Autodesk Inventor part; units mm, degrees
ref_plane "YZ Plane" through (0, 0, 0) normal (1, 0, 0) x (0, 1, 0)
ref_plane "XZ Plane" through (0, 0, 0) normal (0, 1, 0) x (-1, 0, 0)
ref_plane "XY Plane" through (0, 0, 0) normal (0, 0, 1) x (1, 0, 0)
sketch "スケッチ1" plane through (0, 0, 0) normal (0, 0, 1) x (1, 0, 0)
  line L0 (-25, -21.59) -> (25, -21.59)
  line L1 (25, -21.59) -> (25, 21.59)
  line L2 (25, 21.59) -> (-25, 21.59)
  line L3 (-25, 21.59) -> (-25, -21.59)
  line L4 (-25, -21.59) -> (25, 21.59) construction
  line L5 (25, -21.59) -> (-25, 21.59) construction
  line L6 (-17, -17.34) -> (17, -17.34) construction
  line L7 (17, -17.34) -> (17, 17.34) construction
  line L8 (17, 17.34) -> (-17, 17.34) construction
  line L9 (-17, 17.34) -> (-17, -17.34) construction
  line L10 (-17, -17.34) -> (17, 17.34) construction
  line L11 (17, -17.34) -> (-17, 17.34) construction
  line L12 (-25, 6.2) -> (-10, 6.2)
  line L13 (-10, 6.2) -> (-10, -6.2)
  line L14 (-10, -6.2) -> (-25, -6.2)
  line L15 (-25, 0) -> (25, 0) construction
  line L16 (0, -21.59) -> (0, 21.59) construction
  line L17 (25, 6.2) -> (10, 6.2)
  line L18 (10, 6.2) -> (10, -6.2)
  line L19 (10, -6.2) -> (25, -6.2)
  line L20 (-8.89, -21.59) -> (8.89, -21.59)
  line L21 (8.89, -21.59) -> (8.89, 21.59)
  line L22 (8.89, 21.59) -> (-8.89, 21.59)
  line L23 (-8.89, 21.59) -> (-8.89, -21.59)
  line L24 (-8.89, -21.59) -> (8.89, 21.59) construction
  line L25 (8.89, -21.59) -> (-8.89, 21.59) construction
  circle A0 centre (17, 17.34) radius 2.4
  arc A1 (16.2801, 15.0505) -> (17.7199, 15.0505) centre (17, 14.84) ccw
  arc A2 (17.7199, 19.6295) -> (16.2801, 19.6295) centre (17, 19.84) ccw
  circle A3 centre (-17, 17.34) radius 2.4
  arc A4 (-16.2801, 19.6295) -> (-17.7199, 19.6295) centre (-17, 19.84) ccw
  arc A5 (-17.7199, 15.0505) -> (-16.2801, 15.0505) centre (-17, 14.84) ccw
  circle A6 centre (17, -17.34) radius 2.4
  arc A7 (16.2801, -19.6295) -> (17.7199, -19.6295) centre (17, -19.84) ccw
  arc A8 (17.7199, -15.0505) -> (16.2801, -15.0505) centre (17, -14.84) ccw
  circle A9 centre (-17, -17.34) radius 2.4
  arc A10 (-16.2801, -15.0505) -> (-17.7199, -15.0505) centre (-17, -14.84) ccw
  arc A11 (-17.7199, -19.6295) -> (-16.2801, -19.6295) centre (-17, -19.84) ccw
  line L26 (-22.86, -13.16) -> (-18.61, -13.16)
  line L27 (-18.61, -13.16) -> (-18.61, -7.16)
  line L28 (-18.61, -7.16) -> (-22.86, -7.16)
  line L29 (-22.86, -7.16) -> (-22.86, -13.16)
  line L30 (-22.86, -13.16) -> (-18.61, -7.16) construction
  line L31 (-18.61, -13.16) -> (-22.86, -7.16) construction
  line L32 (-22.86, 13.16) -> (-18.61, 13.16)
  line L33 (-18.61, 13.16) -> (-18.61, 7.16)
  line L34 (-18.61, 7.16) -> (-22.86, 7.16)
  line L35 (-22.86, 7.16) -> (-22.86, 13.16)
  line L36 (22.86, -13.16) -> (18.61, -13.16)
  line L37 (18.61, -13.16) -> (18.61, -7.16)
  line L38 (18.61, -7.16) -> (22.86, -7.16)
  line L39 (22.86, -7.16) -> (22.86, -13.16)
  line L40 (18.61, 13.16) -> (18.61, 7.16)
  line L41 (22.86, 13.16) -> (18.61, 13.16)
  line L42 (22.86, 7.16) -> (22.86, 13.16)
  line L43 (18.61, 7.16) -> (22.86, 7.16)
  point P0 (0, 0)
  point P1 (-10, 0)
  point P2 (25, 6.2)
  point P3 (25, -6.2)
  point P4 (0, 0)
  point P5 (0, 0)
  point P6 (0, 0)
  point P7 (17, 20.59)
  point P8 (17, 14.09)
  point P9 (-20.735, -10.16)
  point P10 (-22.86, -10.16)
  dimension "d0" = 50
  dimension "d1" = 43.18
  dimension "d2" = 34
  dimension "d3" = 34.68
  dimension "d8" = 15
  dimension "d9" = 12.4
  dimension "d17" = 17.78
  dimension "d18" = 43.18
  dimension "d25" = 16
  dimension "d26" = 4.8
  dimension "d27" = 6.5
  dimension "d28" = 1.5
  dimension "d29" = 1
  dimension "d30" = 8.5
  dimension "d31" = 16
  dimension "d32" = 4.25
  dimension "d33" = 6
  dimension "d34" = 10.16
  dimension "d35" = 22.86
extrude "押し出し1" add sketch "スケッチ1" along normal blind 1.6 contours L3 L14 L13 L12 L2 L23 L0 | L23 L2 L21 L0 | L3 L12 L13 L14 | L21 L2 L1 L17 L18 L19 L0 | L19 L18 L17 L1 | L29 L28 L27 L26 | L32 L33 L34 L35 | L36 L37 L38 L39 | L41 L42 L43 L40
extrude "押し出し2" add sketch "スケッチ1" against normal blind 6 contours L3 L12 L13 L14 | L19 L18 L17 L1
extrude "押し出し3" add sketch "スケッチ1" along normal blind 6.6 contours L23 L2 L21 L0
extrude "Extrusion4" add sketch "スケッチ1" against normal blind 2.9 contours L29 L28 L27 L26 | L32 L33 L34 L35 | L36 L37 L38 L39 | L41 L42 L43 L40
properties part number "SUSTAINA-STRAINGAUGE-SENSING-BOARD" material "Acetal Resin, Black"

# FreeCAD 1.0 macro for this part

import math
import FreeCAD as App
import Part
import Sketcher

doc = App.newDocument("Part")
body = doc.addObject("PartDesign::Body", "Body")

# Sketch on XY plane
sketch1 = doc.addObject("Sketcher::SketchObject", "Sketch")
body.addObject(sketch1)
sketch1.AttachmentSupport = (doc.XY_Plane, [""])
sketch1.MapMode = "FlatFace"
sketch1.addGeometry([
    Part.LineSegment(App.Vector(-25, -21.59, 0), App.Vector(25, -21.59, 0)),  # 0
    Part.LineSegment(App.Vector(25, -21.59, 0), App.Vector(25, 21.59, 0)),  # 1
    Part.LineSegment(App.Vector(25, 21.59, 0), App.Vector(-25, 21.59, 0)),  # 2
    Part.LineSegment(App.Vector(-25, 21.59, 0), App.Vector(-25, -21.59, 0)),  # 3
    Part.ArcOfCircle(Part.Circle(App.Vector(-17, -17.34, 0), App.Vector(0, 0, 1), 2.4), math.radians(-72.545003), math.radians(72.545003)),  # 4
    Part.ArcOfCircle(Part.Circle(App.Vector(-17, -19.84, 0), App.Vector(0, 0, 1), 0.750044), math.radians(163.700989), math.radians(376.299011)),  # 5
    Part.ArcOfCircle(Part.Circle(App.Vector(-17, -17.34, 0), App.Vector(0, 0, 1), 2.4), math.radians(107.454997), math.radians(252.545003)),  # 6
    Part.ArcOfCircle(Part.Circle(App.Vector(-17, -14.84, 0), App.Vector(0, 0, 1), 0.750044), math.radians(-16.299011), math.radians(196.299011)),  # 7
    Part.ArcOfCircle(Part.Circle(App.Vector(-17, 17.34, 0), App.Vector(0, 0, 1), 2.4), math.radians(-72.545003), math.radians(72.545003)),  # 8
    Part.ArcOfCircle(Part.Circle(App.Vector(-17, 14.84, 0), App.Vector(0, 0, 1), 0.750044), math.radians(163.700989), math.radians(376.299011)),  # 9
    Part.ArcOfCircle(Part.Circle(App.Vector(-17, 17.34, 0), App.Vector(0, 0, 1), 2.4), math.radians(107.454997), math.radians(252.545003)),  # 10
    Part.ArcOfCircle(Part.Circle(App.Vector(-17, 19.84, 0), App.Vector(0, 0, 1), 0.750044), math.radians(-16.299011), math.radians(196.299011)),  # 11
    Part.ArcOfCircle(Part.Circle(App.Vector(17, 14.84, 0), App.Vector(0, 0, 1), 0.750044), math.radians(163.700989), math.radians(376.299011)),  # 12
    Part.ArcOfCircle(Part.Circle(App.Vector(17, 17.34, 0), App.Vector(0, 0, 1), 2.4), math.radians(107.454997), math.radians(252.545003)),  # 13
    Part.ArcOfCircle(Part.Circle(App.Vector(17, 19.84, 0), App.Vector(0, 0, 1), 0.750044), math.radians(-16.299011), math.radians(196.299011)),  # 14
    Part.ArcOfCircle(Part.Circle(App.Vector(17, 17.34, 0), App.Vector(0, 0, 1), 2.4), math.radians(-72.545003), math.radians(72.545003)),  # 15
    Part.ArcOfCircle(Part.Circle(App.Vector(17, -17.34, 0), App.Vector(0, 0, 1), 2.4), math.radians(-72.545003), math.radians(72.545003)),  # 16
    Part.ArcOfCircle(Part.Circle(App.Vector(17, -19.84, 0), App.Vector(0, 0, 1), 0.750044), math.radians(163.700989), math.radians(376.299011)),  # 17
    Part.ArcOfCircle(Part.Circle(App.Vector(17, -17.34, 0), App.Vector(0, 0, 1), 2.4), math.radians(107.454997), math.radians(252.545003)),  # 18
    Part.ArcOfCircle(Part.Circle(App.Vector(17, -14.84, 0), App.Vector(0, 0, 1), 0.750044), math.radians(-16.299011), math.radians(196.299011)),  # 19
], False)
sketch1.addConstraint([
    Sketcher.Constraint("Coincident", 0, 2, 1, 1),
    Sketcher.Constraint("Coincident", 1, 2, 2, 1),
    Sketcher.Constraint("Coincident", 2, 2, 3, 1),
    Sketcher.Constraint("Coincident", 3, 2, 0, 1),
    Sketcher.Constraint("Coincident", 4, 1, 5, 2),
    Sketcher.Constraint("Coincident", 5, 1, 6, 2),
    Sketcher.Constraint("Coincident", 6, 1, 7, 2),
    Sketcher.Constraint("Coincident", 7, 1, 4, 2),
    Sketcher.Constraint("Coincident", 8, 1, 9, 2),
    Sketcher.Constraint("Coincident", 9, 1, 10, 2),
    Sketcher.Constraint("Coincident", 10, 1, 11, 2),
    Sketcher.Constraint("Coincident", 11, 1, 8, 2),
    Sketcher.Constraint("Coincident", 12, 1, 13, 2),
    Sketcher.Constraint("Coincident", 13, 1, 14, 2),
    Sketcher.Constraint("Coincident", 14, 1, 15, 2),
    Sketcher.Constraint("Coincident", 15, 1, 12, 2),
    Sketcher.Constraint("Coincident", 16, 1, 17, 2),
    Sketcher.Constraint("Coincident", 17, 1, 18, 2),
    Sketcher.Constraint("Coincident", 18, 1, 19, 2),
    Sketcher.Constraint("Coincident", 19, 1, 16, 2),
    Sketcher.Constraint("Horizontal", 0),
    Sketcher.Constraint("Vertical", 1),
    Sketcher.Constraint("Horizontal", 2),
    Sketcher.Constraint("Vertical", 3),
    Sketcher.Constraint("Coincident", 6, 3, 4, 3),
    Sketcher.Constraint("Coincident", 10, 3, 8, 3),
    Sketcher.Constraint("Coincident", 15, 3, 13, 3),
    Sketcher.Constraint("Coincident", 18, 3, 16, 3),
    Sketcher.Constraint("Equal", 4, 6),
    Sketcher.Constraint("Equal", 5, 7),
    Sketcher.Constraint("Equal", 6, 8),
    Sketcher.Constraint("Equal", 7, 9),
    Sketcher.Constraint("Equal", 8, 10),
    Sketcher.Constraint("Equal", 9, 11),
    Sketcher.Constraint("Equal", 11, 12),
    Sketcher.Constraint("Equal", 10, 13),
    Sketcher.Constraint("Equal", 12, 14),
    Sketcher.Constraint("Equal", 13, 15),
    Sketcher.Constraint("Equal", 15, 16),
    Sketcher.Constraint("Equal", 14, 17),
    Sketcher.Constraint("Equal", 16, 18),
    Sketcher.Constraint("Equal", 17, 19),
    Sketcher.Constraint("Symmetric", 7, 3, 12, 3, -1, 1),
    Sketcher.Constraint("Symmetric", 4, 3, 13, 3, -1, 1),
    Sketcher.Constraint("Symmetric", 5, 3, 14, 3, -1, 1),
    Sketcher.Constraint("Symmetric", 8, 3, 16, 3, -1, 1),
    Sketcher.Constraint("Symmetric", 11, 3, 17, 3, -1, 1),
    Sketcher.Constraint("Symmetric", 9, 3, 19, 3, -1, 1),
    Sketcher.Constraint("Symmetric", 0, 2, 2, 2, -1, 1),
    Sketcher.Constraint("Symmetric", 9, 3, 12, 3, -2),
    Sketcher.Constraint("Symmetric", 8, 3, 13, 3, -2),
    Sketcher.Constraint("Symmetric", 11, 3, 14, 3, -2),
    Sketcher.Constraint("Horizontal", 4, 1, 5, 1),
    Sketcher.Constraint("Horizontal", 6, 1, 7, 1),
    Sketcher.Constraint("Vertical", 5, 1, 6, 1),
    Sketcher.Constraint("Radius", 4, 2.4),
    Sketcher.Constraint("DistanceX", 0, 1, 0, 2, 50.0),
    Sketcher.Constraint("Radius", 5, 0.75),
    Sketcher.Constraint("DistanceX", 9, 3, 12, 3, 34.0),
    Sketcher.Constraint("DistanceY", 1, 1, 1, 2, 43.18),
    Sketcher.Constraint("DistanceY", 4, 3, 8, 3, 34.68),
    Sketcher.Constraint("DistanceY", 5, 3, 7, 3, 5.0),
])
pad1 = doc.addObject("PartDesign::Pad", "Pad")
body.addObject(pad1)
pad1.Profile = sketch1
pad1.Length = 1.6

# Sketch on XY plane
sketch2 = doc.addObject("Sketcher::SketchObject", "Sketch001")
body.addObject(sketch2)
sketch2.AttachmentSupport = (doc.XY_Plane, [""])
sketch2.MapMode = "FlatFace"
sketch2.addGeometry([
    Part.LineSegment(App.Vector(-25, 6.2, 0), App.Vector(-25, -6.2, 0)),  # 0
    Part.LineSegment(App.Vector(-25, -6.2, 0), App.Vector(-10, -6.2, 0)),  # 1
    Part.LineSegment(App.Vector(-10, -6.2, 0), App.Vector(-10, 6.2, 0)),  # 2
    Part.LineSegment(App.Vector(-10, 6.2, 0), App.Vector(-25, 6.2, 0)),  # 3
    Part.LineSegment(App.Vector(10, -6.2, 0), App.Vector(25, -6.2, 0)),  # 4
    Part.LineSegment(App.Vector(25, -6.2, 0), App.Vector(25, 6.2, 0)),  # 5
    Part.LineSegment(App.Vector(25, 6.2, 0), App.Vector(10, 6.2, 0)),  # 6
    Part.LineSegment(App.Vector(10, 6.2, 0), App.Vector(10, -6.2, 0)),  # 7
], False)
sketch2.addConstraint([
    Sketcher.Constraint("Coincident", 0, 2, 1, 1),
    Sketcher.Constraint("Coincident", 1, 2, 2, 1),
    Sketcher.Constraint("Coincident", 2, 2, 3, 1),
    Sketcher.Constraint("Coincident", 3, 2, 0, 1),
    Sketcher.Constraint("Coincident", 4, 2, 5, 1),
    Sketcher.Constraint("Coincident", 5, 2, 6, 1),
    Sketcher.Constraint("Coincident", 6, 2, 7, 1),
    Sketcher.Constraint("Coincident", 7, 2, 4, 1),
    Sketcher.Constraint("Vertical", 0),
    Sketcher.Constraint("Horizontal", 1),
    Sketcher.Constraint("Vertical", 2),
    Sketcher.Constraint("Horizontal", 3),
    Sketcher.Constraint("Horizontal", 4),
    Sketcher.Constraint("Vertical", 5),
    Sketcher.Constraint("Horizontal", 6),
    Sketcher.Constraint("Vertical", 7),
    Sketcher.Constraint("Symmetric", 3, 2, 4, 2, -1, 1),
    Sketcher.Constraint("Symmetric", 1, 2, 6, 2, -1, 1),
    Sketcher.Constraint("Horizontal", 1, 2, 4, 2),
    Sketcher.Constraint("DistanceX", 1, 1, 1, 2, 15.0),
    Sketcher.Constraint("DistanceY", 0, 2, 0, 1, 12.4),
    Sketcher.Constraint("DistanceX", 0, 2, 4, 2, 50.0),
])
pad2 = doc.addObject("PartDesign::Pad", "Pad001")
body.addObject(pad2)
pad2.Profile = sketch2
pad2.Length = 6
pad2.Reversed = True

# Sketch on XY plane
sketch3 = doc.addObject("Sketcher::SketchObject", "Sketch002")
body.addObject(sketch3)
sketch3.AttachmentSupport = (doc.XY_Plane, [""])
sketch3.MapMode = "FlatFace"
sketch3.addGeometry([
    Part.LineSegment(App.Vector(-8.89, 21.59, 0), App.Vector(-8.89, -21.59, 0)),
    Part.LineSegment(App.Vector(-8.89, -21.59, 0), App.Vector(8.89, -21.59, 0)),
    Part.LineSegment(App.Vector(8.89, -21.59, 0), App.Vector(8.89, 21.59, 0)),
    Part.LineSegment(App.Vector(8.89, 21.59, 0), App.Vector(-8.89, 21.59, 0)),
], False)
sketch3.addConstraint([
    Sketcher.Constraint("Coincident", 0, 2, 1, 1),
    Sketcher.Constraint("Coincident", 1, 2, 2, 1),
    Sketcher.Constraint("Coincident", 2, 2, 3, 1),
    Sketcher.Constraint("Coincident", 3, 2, 0, 1),
    Sketcher.Constraint("Vertical", 0),
    Sketcher.Constraint("Horizontal", 1),
    Sketcher.Constraint("Vertical", 2),
    Sketcher.Constraint("Horizontal", 3),
    Sketcher.Constraint("Symmetric", 0, 2, 2, 2, -1, 1),
    Sketcher.Constraint("DistanceX", 1, 1, 1, 2, 17.78),
    Sketcher.Constraint("DistanceY", 0, 2, 0, 1, 43.18),
])
pad3 = doc.addObject("PartDesign::Pad", "Pad002")
body.addObject(pad3)
pad3.Profile = sketch3
pad3.Length = 6.6

# Sketch on XY plane
sketch4 = doc.addObject("Sketcher::SketchObject", "Sketch003")
body.addObject(sketch4)
sketch4.AttachmentSupport = (doc.XY_Plane, [""])
sketch4.MapMode = "FlatFace"
sketch4.addGeometry([
    Part.LineSegment(App.Vector(-22.86, -7.16, 0), App.Vector(-22.86, -13.16, 0)),  # 0
    Part.LineSegment(App.Vector(-22.86, -13.16, 0), App.Vector(-18.61, -13.16, 0)),  # 1
    Part.LineSegment(App.Vector(-18.61, -13.16, 0), App.Vector(-18.61, -7.16, 0)),  # 2
    Part.LineSegment(App.Vector(-18.61, -7.16, 0), App.Vector(-22.86, -7.16, 0)),  # 3
    Part.LineSegment(App.Vector(-18.61, 13.16, 0), App.Vector(-22.86, 13.16, 0)),  # 4
    Part.LineSegment(App.Vector(-22.86, 13.16, 0), App.Vector(-22.86, 7.16, 0)),  # 5
    Part.LineSegment(App.Vector(-22.86, 7.16, 0), App.Vector(-18.61, 7.16, 0)),  # 6
    Part.LineSegment(App.Vector(-18.61, 7.16, 0), App.Vector(-18.61, 13.16, 0)),  # 7
    Part.LineSegment(App.Vector(18.61, -13.16, 0), App.Vector(22.86, -13.16, 0)),  # 8
    Part.LineSegment(App.Vector(22.86, -13.16, 0), App.Vector(22.86, -7.16, 0)),  # 9
    Part.LineSegment(App.Vector(22.86, -7.16, 0), App.Vector(18.61, -7.16, 0)),  # 10
    Part.LineSegment(App.Vector(18.61, -7.16, 0), App.Vector(18.61, -13.16, 0)),  # 11
    Part.LineSegment(App.Vector(22.86, 13.16, 0), App.Vector(18.61, 13.16, 0)),  # 12
    Part.LineSegment(App.Vector(18.61, 13.16, 0), App.Vector(18.61, 7.16, 0)),  # 13
    Part.LineSegment(App.Vector(18.61, 7.16, 0), App.Vector(22.86, 7.16, 0)),  # 14
    Part.LineSegment(App.Vector(22.86, 7.16, 0), App.Vector(22.86, 13.16, 0)),  # 15
], False)
sketch4.addConstraint([
    Sketcher.Constraint("Coincident", 0, 2, 1, 1),
    Sketcher.Constraint("Coincident", 1, 2, 2, 1),
    Sketcher.Constraint("Coincident", 2, 2, 3, 1),
    Sketcher.Constraint("Coincident", 3, 2, 0, 1),
    Sketcher.Constraint("Coincident", 4, 2, 5, 1),
    Sketcher.Constraint("Coincident", 5, 2, 6, 1),
    Sketcher.Constraint("Coincident", 6, 2, 7, 1),
    Sketcher.Constraint("Coincident", 7, 2, 4, 1),
    Sketcher.Constraint("Coincident", 8, 2, 9, 1),
    Sketcher.Constraint("Coincident", 9, 2, 10, 1),
    Sketcher.Constraint("Coincident", 10, 2, 11, 1),
    Sketcher.Constraint("Coincident", 11, 2, 8, 1),
    Sketcher.Constraint("Coincident", 12, 2, 13, 1),
    Sketcher.Constraint("Coincident", 13, 2, 14, 1),
    Sketcher.Constraint("Coincident", 14, 2, 15, 1),
    Sketcher.Constraint("Coincident", 15, 2, 12, 1),
    Sketcher.Constraint("Vertical", 0),
    Sketcher.Constraint("Horizontal", 1),
    Sketcher.Constraint("Vertical", 2),
    Sketcher.Constraint("Horizontal", 3),
    Sketcher.Constraint("Horizontal", 4),
    Sketcher.Constraint("Vertical", 5),
    Sketcher.Constraint("Horizontal", 6),
    Sketcher.Constraint("Vertical", 7),
    Sketcher.Constraint("Horizontal", 8),
    Sketcher.Constraint("Vertical", 9),
    Sketcher.Constraint("Horizontal", 10),
    Sketcher.Constraint("Vertical", 11),
    Sketcher.Constraint("Horizontal", 12),
    Sketcher.Constraint("Vertical", 13),
    Sketcher.Constraint("Horizontal", 14),
    Sketcher.Constraint("Vertical", 15),
    Sketcher.Constraint("Symmetric", 4, 2, 8, 2, -1, 1),
    Sketcher.Constraint("Symmetric", 6, 2, 10, 2, -1, 1),
    Sketcher.Constraint("Symmetric", 1, 2, 12, 2, -1, 1),
    Sketcher.Constraint("Symmetric", 3, 2, 14, 2, -1, 1),
    Sketcher.Constraint("Symmetric", 0, 2, 8, 2, -2),
    Sketcher.Constraint("Symmetric", 2, 2, 10, 2, -2),
    Sketcher.Constraint("DistanceY", 0, 2, 0, 1, 6.0),
    Sketcher.Constraint("DistanceX", 1, 1, 1, 2, 4.25),
    Sketcher.Constraint("DistanceX", 0, 2, -1, 1, 22.86),
    Sketcher.Constraint("DistanceY", 0, 2, -1, 1, 13.16),
])
pad4 = doc.addObject("PartDesign::Pad", "Pad003")
body.addObject(pad4)
pad4.Profile = sketch4
pad4.Length = 2.9
pad4.Reversed = True

doc.recompute()
